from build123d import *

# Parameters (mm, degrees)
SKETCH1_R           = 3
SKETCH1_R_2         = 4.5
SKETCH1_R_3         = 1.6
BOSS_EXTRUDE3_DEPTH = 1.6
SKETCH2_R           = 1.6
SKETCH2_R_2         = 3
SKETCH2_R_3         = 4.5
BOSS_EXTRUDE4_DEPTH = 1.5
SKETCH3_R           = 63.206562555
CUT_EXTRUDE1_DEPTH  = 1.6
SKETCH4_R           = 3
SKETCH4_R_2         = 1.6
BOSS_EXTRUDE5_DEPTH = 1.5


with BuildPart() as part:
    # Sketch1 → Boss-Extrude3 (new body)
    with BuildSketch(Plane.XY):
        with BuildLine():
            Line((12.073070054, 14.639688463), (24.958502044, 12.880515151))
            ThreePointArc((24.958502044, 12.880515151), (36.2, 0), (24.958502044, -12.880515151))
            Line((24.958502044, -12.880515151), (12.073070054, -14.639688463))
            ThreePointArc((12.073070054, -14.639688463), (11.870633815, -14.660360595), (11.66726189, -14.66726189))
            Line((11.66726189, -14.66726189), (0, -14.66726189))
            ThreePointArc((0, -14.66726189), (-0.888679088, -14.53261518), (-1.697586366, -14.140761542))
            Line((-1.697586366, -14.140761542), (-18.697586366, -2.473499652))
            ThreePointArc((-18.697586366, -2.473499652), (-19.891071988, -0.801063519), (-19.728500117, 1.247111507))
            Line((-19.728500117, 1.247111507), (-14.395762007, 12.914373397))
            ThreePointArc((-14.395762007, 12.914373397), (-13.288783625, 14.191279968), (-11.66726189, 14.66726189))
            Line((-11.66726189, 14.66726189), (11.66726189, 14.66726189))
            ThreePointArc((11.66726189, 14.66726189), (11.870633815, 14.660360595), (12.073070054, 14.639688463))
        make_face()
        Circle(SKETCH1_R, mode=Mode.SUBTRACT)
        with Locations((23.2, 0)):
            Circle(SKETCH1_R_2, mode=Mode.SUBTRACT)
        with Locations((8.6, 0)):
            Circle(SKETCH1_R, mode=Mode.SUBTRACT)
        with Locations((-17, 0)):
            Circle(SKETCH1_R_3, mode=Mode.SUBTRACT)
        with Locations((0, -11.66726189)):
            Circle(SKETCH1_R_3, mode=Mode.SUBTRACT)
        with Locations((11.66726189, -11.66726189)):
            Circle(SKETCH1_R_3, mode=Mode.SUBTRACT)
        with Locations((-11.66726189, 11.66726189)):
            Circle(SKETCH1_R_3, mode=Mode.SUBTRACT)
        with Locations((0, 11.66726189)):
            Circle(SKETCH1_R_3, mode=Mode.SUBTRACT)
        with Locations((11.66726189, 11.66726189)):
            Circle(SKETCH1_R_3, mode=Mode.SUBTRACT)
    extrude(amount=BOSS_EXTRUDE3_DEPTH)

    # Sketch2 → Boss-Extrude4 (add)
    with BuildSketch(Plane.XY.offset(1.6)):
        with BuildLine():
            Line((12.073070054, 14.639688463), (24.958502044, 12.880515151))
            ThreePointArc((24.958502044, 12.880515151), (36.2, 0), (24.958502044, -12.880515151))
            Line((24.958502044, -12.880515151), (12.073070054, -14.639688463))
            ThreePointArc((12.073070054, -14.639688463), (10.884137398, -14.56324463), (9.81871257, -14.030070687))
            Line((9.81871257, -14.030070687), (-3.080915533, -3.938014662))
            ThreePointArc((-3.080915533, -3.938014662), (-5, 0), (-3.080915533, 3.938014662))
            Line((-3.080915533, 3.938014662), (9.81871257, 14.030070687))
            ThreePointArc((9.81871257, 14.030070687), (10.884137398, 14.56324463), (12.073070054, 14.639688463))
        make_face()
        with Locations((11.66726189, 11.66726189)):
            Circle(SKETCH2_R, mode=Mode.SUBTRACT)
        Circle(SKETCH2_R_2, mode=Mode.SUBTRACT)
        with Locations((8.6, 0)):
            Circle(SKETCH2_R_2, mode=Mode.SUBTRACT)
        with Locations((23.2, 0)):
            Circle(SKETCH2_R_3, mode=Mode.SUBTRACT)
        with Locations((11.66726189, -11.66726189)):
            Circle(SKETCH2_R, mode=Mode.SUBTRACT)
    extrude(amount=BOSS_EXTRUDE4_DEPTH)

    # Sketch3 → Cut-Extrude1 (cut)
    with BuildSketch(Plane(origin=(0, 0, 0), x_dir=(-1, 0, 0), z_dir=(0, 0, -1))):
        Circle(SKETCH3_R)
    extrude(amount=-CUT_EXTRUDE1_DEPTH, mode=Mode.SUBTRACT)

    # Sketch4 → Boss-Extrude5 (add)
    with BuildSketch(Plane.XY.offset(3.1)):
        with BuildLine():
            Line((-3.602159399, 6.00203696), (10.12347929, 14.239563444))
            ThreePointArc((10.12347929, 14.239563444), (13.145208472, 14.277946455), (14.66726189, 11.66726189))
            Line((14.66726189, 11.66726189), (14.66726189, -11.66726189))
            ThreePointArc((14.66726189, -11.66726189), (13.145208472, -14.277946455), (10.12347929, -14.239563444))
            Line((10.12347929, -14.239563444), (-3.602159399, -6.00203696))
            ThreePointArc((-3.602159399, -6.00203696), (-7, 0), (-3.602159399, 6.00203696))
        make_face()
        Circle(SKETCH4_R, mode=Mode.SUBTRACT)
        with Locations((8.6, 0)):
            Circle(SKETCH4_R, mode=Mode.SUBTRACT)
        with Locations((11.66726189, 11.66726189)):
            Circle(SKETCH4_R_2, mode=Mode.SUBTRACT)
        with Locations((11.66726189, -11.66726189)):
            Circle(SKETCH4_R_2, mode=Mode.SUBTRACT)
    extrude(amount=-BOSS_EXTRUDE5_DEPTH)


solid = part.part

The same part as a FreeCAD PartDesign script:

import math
import FreeCAD as App
import Part
import Sketcher

V = App.Vector
Q = App.Units.Quantity

doc = App.newDocument("Part")
params = doc.addObject("Spreadsheet::Sheet", "Params")
for row, (alias, value) in enumerate([
    ("sketch1_diameter", "9 mm"),
    ("sketch1_diameter2", "6 mm"),
    ("sketch1_radius", "13 mm"),
    ("sketch1_diameter3", "3.2 mm"),
    ("pad1_length", "1.6 mm"),
    ("sketch2_diameter", "9 mm"),
    ("sketch2_diameter2", "6 mm"),
    ("sketch2_radius", "5 mm"),
    ("sketch2_radius2", "13 mm"),
    ("sketch2_diameter3", "3.2 mm"),
    ("pad2_length", "1.5 mm"),
    ("pocket1_length", "1.6 mm"),
    ("sketch4_diameter", "6 mm"),
    ("sketch4_radius", "7 mm"),
    ("sketch4_diameter2", "3.2 mm"),
    ("pad3_length", "1.5 mm"),
], start=1):
    params.set(f"A{row}", alias)
    params.set(f"B{row}", "=" + value)
    params.setAlias(f"B{row}", alias)

body = doc.addObject("PartDesign::Body", "Body")

# Sketch on XY plane
sketch1 = body.newObject("Sketcher::SketchObject", "Sketch")
sketch1.AttachmentSupport = (doc.getObject("XY_Plane"), [""])
sketch1.MapMode = "FlatFace"
sketch1.addGeometry([
    Part.LineSegment(V(24.96, 12.88, 0), V(12.07, 14.64, 0)),  # 0
    Part.ArcOfCircle(Part.Circle(V(11.67, 11.67, 0), V(0, 0, 1), 3), math.radians(82.23), math.radians(90)),  # 1
    Part.LineSegment(V(11.67, 14.67, 0), V(-11.67, 14.67, 0)),  # 2
    Part.ArcOfCircle(Part.Circle(V(-11.67, 11.67, 0), V(0, 0, 1), 3), math.radians(90), math.radians(155)),  # 3
    Part.LineSegment(V(-14.4, 12.91, 0), V(-19.73, 1.25, 0)),  # 4
    Part.ArcOfCircle(Part.Circle(V(-17, 0, 0), V(0, 0, 1), 3), math.radians(155), math.radians(236)),  # 5
    Part.LineSegment(V(-18.7, -2.47, 0), V(-1.7, -14.14, 0)),  # 6
    Part.ArcOfCircle(Part.Circle(V(0, -11.67, 0), V(0, 0, 1), 3), math.radians(-124), math.radians(-90)),  # 7
    Part.LineSegment(V(0, -14.67, 0), V(11.67, -14.67, 0)),  # 8
    Part.ArcOfCircle(Part.Circle(V(11.67, -11.67, 0), V(0, 0, 1), 3), math.radians(-90), math.radians(-82.23)),  # 9
    Part.LineSegment(V(12.07, -14.64, 0), V(24.96, -12.88, 0)),  # 10
    Part.ArcOfCircle(Part.Circle(V(23.2, 0, 0), V(0, 0, 1), 13), math.radians(-82), math.radians(82)),  # 11
    Part.Circle(V(11.67, -11.67, 0), V(0, 0, 1), 1.6),  # 12
    Part.Circle(V(0, -11.67, 0), V(0, 0, 1), 1.6),  # 13
    Part.Circle(V(23.2, 0, 0), V(0, 0, 1), 4.5),  # 14
    Part.Circle(V(8.6, 0, 0), V(0, 0, 1), 3),  # 15
    Part.Circle(V(11.67, 11.67, 0), V(0, 0, 1), 1.6),  # 16
    Part.Circle(V(0, 0, 0), V(0, 0, 1), 3),  # 17
    Part.Circle(V(-17, 0, 0), V(0, 0, 1), 1.6),  # 18
    Part.Circle(V(0, 11.67, 0), V(0, 0, 1), 1.6),  # 19
    Part.Circle(V(-11.67, 11.67, 0), V(0, 0, 1), 1.6),  # 20
], False)
sketch1.addConstraint([
    Sketcher.Constraint("Tangent", 0, 2, 1, 1),
    Sketcher.Constraint("Tangent", 1, 2, 2, 1),
    Sketcher.Constraint("Tangent", 2, 2, 3, 1),
    Sketcher.Constraint("Tangent", 3, 2, 4, 1),
    Sketcher.Constraint("Tangent", 4, 2, 5, 1),
    Sketcher.Constraint("Tangent", 5, 2, 6, 1),
    Sketcher.Constraint("Tangent", 6, 2, 7, 1),
    Sketcher.Constraint("Tangent", 7, 2, 8, 1),
    Sketcher.Constraint("Tangent", 8, 2, 9, 1),
    Sketcher.Constraint("Tangent", 9, 2, 10, 1),
    Sketcher.Constraint("Tangent", 10, 2, 11, 1),
    Sketcher.Constraint("Tangent", 11, 2, 0, 1),
    Sketcher.Constraint("Horizontal", 2),
    Sketcher.Constraint("Horizontal", 8),
    Sketcher.Constraint("Coincident", 17, 3, -1, 1),
    Sketcher.Constraint("Coincident", 12, 3, 9, 3),
    Sketcher.Constraint("Coincident", 13, 3, 7, 3),
    Sketcher.Constraint("Coincident", 14, 3, 11, 3),
    Sketcher.Constraint("Coincident", 16, 3, 1, 3),
    Sketcher.Constraint("Coincident", 18, 3, 5, 3),
    Sketcher.Constraint("Coincident", 20, 3, 3, 3),
    Sketcher.Constraint("Equal", 1, 3),
    Sketcher.Constraint("Equal", 3, 5),
    Sketcher.Constraint("Equal", 5, 7),
    Sketcher.Constraint("Equal", 7, 9),
    Sketcher.Constraint("Equal", 12, 13),
    Sketcher.Constraint("Equal", 9, 15),
    Sketcher.Constraint("Equal", 13, 16),
    Sketcher.Constraint("Equal", 15, 17),
    Sketcher.Constraint("Equal", 16, 18),
    Sketcher.Constraint("Equal", 18, 19),
    Sketcher.Constraint("Equal", 19, 20),
    Sketcher.Constraint("Symmetric", 3, 3, 9, 3, -1, 1),
    Sketcher.Constraint("Symmetric", 7, 3, 19, 3, -1, 1),
    Sketcher.Constraint("Symmetric", 0, 2, 9, 2, -1),
    Sketcher.Constraint("PointOnObject", 5, 3, -1),
    Sketcher.Constraint("PointOnObject", 7, 3, -2),
    Sketcher.Constraint("PointOnObject", 15, 3, -1),
    Sketcher.Constraint("Diameter", 14, Q("9 mm")),
    Sketcher.Constraint("Diameter", 15, Q("6 mm")),
    Sketcher.Constraint("Radius", 11, Q("13 mm")),
    Sketcher.Constraint("Diameter", 12, Q("3.2 mm")),
    Sketcher.Constraint("DistanceX", 5, 3, -1, 1, Q("17 mm")),
    Sketcher.Constraint("DistanceX", -1, 1, 11, 3, Q("23.2 mm")),
    Sketcher.Constraint("DistanceX", -1, 1, 15, 3, Q("8.6 mm")),
    Sketcher.Constraint("DistanceX", 8, 1, 8, 2, Q("11.667262 mm")),
    Sketcher.Constraint("DistanceX", 4, 2, -1, 1, Q("19.7285 mm")),
])
sketch1.setExpression("Constraints[38]", "Params.sketch1_diameter")
sketch1.setExpression("Constraints[39]", "Params.sketch1_diameter2")
sketch1.setExpression("Constraints[40]", "Params.sketch1_radius")
sketch1.setExpression("Constraints[41]", "Params.sketch1_diameter3")
pad1 = body.newObject("PartDesign::Pad", "Pad")
pad1.Profile = sketch1
pad1.setExpression("Length", "Params.pad1_length")

# Sketch on XY plane
sketch2 = body.newObject("Sketcher::SketchObject", "Sketch001")
sketch2.AttachmentSupport = (doc.getObject("XY_Plane"), [""])
sketch2.MapMode = "FlatFace"
sketch2.AttachmentOffset = App.Placement(V(0, 0, 1.6), App.Rotation())
sketch2.addGeometry([
    Part.LineSegment(V(25, 12.9, 0), V(12.1, 14.6, 0)),  # 0
    Part.ArcOfCircle(Part.Circle(V(11.7, 11.7, 0), V(0, 0, 1), 3), math.radians(82), math.radians(128)),  # 1
    Part.LineSegment(V(9.8, 14, 0), V(-3.1, 3.9, 0)),  # 2
    Part.ArcOfCircle(Part.Circle(V(0, 0, 0), V(0, 0, 1), 5), math.radians(128), math.radians(232)),  # 3
    Part.LineSegment(V(-3.1, -3.9, 0), V(9.8, -14, 0)),  # 4
    Part.ArcOfCircle(Part.Circle(V(11.7, -11.7, 0), V(0, 0, 1), 3), math.radians(-128), math.radians(-82)),  # 5
    Part.LineSegment(V(12.1, -14.6, 0), V(25, -12.9, 0)),  # 6
    Part.ArcOfCircle(Part.Circle(V(23.2, 0, 0), V(0, 0, 1), 13), math.radians(-82), math.radians(82)),  # 7
    Part.Circle(V(11.7, -11.7, 0), V(0, 0, 1), 1.6),  # 8
    Part.Circle(V(23.2, 0, 0), V(0, 0, 1), 4.5),  # 9
    Part.Circle(V(8.6, 0, 0), V(0, 0, 1), 3),  # 10
    Part.Circle(V(0, 0, 0), V(0, 0, 1), 3),  # 11
    Part.Circle(V(11.7, 11.7, 0), V(0, 0, 1), 1.6),  # 12
], False)
sketch2.addConstraint([
    Sketcher.Constraint("Tangent", 0, 2, 1, 1),
    Sketcher.Constraint("Tangent", 1, 2, 2, 1),
    Sketcher.Constraint("Tangent", 2, 2, 3, 1),
    Sketcher.Constraint("Tangent", 3, 2, 4, 1),
    Sketcher.Constraint("Tangent", 4, 2, 5, 1),
    Sketcher.Constraint("Tangent", 5, 2, 6, 1),
    Sketcher.Constraint("Tangent", 6, 2, 7, 1),
    Sketcher.Constraint("Tangent", 7, 2, 0, 1),
    Sketcher.Constraint("Coincident", 3, 3, -1, 1),
    Sketcher.Constraint("Coincident", 11, 3, -1, 1),
    Sketcher.Constraint("Coincident", 8, 3, 5, 3),
    Sketcher.Constraint("Coincident", 9, 3, 7, 3),
    Sketcher.Constraint("Coincident", 12, 3, 1, 3),
    Sketcher.Constraint("Equal", 1, 5),
    Sketcher.Constraint("Equal", 5, 10),
    Sketcher.Constraint("Equal", 10, 11),
    Sketcher.Constraint("Equal", 8, 12),
    Sketcher.Constraint("Symmetric", 1, 3, 5, 3, -1),
    Sketcher.Constraint("PointOnObject", 7, 3, -1),
    Sketcher.Constraint("PointOnObject", 10, 3, -1),
    Sketcher.Constraint("Diameter", 9, Q("9 mm")),
    Sketcher.Constraint("Diameter", 10, Q("6 mm")),
    Sketcher.Constraint("Radius", 3, Q("5 mm")),
    Sketcher.Constraint("Radius", 7, Q("13 mm")),
    Sketcher.Constraint("Diameter", 8, Q("3.2 mm")),
    Sketcher.Constraint("DistanceX", -1, 1, 7, 3, Q("23.2 mm")),
    Sketcher.Constraint("DistanceX", -1, 1, 10, 3, Q("8.6 mm")),
    Sketcher.Constraint("Distance", 2, Q("16.378339 mm")),
    Sketcher.Constraint("DistanceX", -1, 1, 1, 3, Q("11.667262 mm")),
])
sketch2.setExpression("Constraints[20]", "Params.sketch2_diameter")
sketch2.setExpression("Constraints[21]", "Params.sketch2_diameter2")
sketch2.setExpression("Constraints[22]", "Params.sketch2_radius")
sketch2.setExpression("Constraints[23]", "Params.sketch2_radius2")
sketch2.setExpression("Constraints[24]", "Params.sketch2_diameter3")
pad2 = body.newObject("PartDesign::Pad", "Pad001")
pad2.Profile = sketch2
pad2.setExpression("Length", "Params.pad2_length")

# Sketch on XY plane
sketch3 = body.newObject("Sketcher::SketchObject", "Sketch002")
sketch3.AttachmentSupport = (doc.getObject("XY_Plane"), [""])
sketch3.MapMode = "FlatFace"
sketch3.addGeometry(Part.Circle(V(0, 0, 0), V(0, 0, 1), 63), False)
sketch3.addConstraint([
    Sketcher.Constraint("Coincident", 0, 3, -1, 1),
    Sketcher.Constraint("Diameter", 0, Q("126.413125 mm")),
])
pocket1 = body.newObject("PartDesign::Pocket", "Pocket")
pocket1.Profile = sketch3
pocket1.setExpression("Length", "Params.pocket1_length")
pocket1.Reversed = True

# Sketch on XY plane
sketch4 = body.newObject("Sketcher::SketchObject", "Sketch003")
sketch4.AttachmentSupport = (doc.getObject("XY_Plane"), [""])
sketch4.MapMode = "FlatFace"
sketch4.AttachmentOffset = App.Placement(V(0, 0, 3.1), App.Rotation())
sketch4.addGeometry([
    Part.LineSegment(V(10.1, 14.2, 0), V(-3.6, 6, 0)),  # 0
    Part.ArcOfCircle(Part.Circle(V(0, 0, 0), V(0, 0, 1), 7), math.radians(121), math.radians(239)),  # 1
    Part.LineSegment(V(-3.6, -6, 0), V(10.1, -14.2, 0)),  # 2
    Part.ArcOfCircle(Part.Circle(V(11.7, -11.7, 0), V(0, 0, 1), 3), math.radians(-121), math.radians(0)),  # 3
    Part.LineSegment(V(14.7, -11.7, 0), V(14.7, 11.7, 0)),  # 4
    Part.ArcOfCircle(Part.Circle(V(11.7, 11.7, 0), V(0, 0, 1), 3), math.radians(0), math.radians(121)),  # 5
    Part.Circle(V(11.7, -11.7, 0), V(0, 0, 1), 1.6),  # 6
    Part.Circle(V(8.6, 0, 0), V(0, 0, 1), 3),  # 7
    Part.Circle(V(11.7, 11.7, 0), V(0, 0, 1), 1.6),  # 8
    Part.Circle(V(0, 0, 0), V(0, 0, 1), 3),  # 9
], False)
sketch4.addConstraint([
    Sketcher.Constraint("Tangent", 0, 2, 1, 1),
    Sketcher.Constraint("Tangent", 1, 2, 2, 1),
    Sketcher.Constraint("Tangent", 2, 2, 3, 1),
    Sketcher.Constraint("Tangent", 3, 2, 4, 1),
    Sketcher.Constraint("Tangent", 4, 2, 5, 1),
    Sketcher.Constraint("Tangent", 5, 2, 0, 1),
    Sketcher.Constraint("Vertical", 4),
    Sketcher.Constraint("Coincident", 1, 3, -1, 1),
    Sketcher.Constraint("Coincident", 9, 3, -1, 1),
    Sketcher.Constraint("Coincident", 6, 3, 3, 3),
    Sketcher.Constraint("Coincident", 8, 3, 5, 3),
    Sketcher.Constraint("Equal", 3, 5),
    Sketcher.Constraint("Equal", 5, 7),
    Sketcher.Constraint("Equal", 6, 8),
    Sketcher.Constraint("Equal", 7, 9),
    Sketcher.Constraint("PointOnObject", 7, 3, -1),
    Sketcher.Constraint("Vertical", 0, 2, 1, 2),
    Sketcher.Constraint("Diameter", 7, Q("6 mm")),
    Sketcher.Constraint("Radius", 1, Q("7 mm")),
    Sketcher.Constraint("Diameter", 6, Q("3.2 mm")),
    Sketcher.Constraint("DistanceX", -1, 1, 7, 3, Q("8.6 mm")),
    Sketcher.Constraint("DistanceY", 2, 2, 6, 3, Q("2.572302 mm")),
    Sketcher.Constraint("Distance", 0, Q("16.007811 mm")),
])
sketch4.setExpression("Constraints[17]", "Params.sketch4_diameter")
sketch4.setExpression("Constraints[18]", "Params.sketch4_radius")
sketch4.setExpression("Constraints[19]", "Params.sketch4_diameter2")
pad3 = body.newObject("PartDesign::Pad", "Pad002")
pad3.Profile = sketch4
pad3.setExpression("Length", "Params.pad3_length")
pad3.Reversed = True

doc.recompute()
